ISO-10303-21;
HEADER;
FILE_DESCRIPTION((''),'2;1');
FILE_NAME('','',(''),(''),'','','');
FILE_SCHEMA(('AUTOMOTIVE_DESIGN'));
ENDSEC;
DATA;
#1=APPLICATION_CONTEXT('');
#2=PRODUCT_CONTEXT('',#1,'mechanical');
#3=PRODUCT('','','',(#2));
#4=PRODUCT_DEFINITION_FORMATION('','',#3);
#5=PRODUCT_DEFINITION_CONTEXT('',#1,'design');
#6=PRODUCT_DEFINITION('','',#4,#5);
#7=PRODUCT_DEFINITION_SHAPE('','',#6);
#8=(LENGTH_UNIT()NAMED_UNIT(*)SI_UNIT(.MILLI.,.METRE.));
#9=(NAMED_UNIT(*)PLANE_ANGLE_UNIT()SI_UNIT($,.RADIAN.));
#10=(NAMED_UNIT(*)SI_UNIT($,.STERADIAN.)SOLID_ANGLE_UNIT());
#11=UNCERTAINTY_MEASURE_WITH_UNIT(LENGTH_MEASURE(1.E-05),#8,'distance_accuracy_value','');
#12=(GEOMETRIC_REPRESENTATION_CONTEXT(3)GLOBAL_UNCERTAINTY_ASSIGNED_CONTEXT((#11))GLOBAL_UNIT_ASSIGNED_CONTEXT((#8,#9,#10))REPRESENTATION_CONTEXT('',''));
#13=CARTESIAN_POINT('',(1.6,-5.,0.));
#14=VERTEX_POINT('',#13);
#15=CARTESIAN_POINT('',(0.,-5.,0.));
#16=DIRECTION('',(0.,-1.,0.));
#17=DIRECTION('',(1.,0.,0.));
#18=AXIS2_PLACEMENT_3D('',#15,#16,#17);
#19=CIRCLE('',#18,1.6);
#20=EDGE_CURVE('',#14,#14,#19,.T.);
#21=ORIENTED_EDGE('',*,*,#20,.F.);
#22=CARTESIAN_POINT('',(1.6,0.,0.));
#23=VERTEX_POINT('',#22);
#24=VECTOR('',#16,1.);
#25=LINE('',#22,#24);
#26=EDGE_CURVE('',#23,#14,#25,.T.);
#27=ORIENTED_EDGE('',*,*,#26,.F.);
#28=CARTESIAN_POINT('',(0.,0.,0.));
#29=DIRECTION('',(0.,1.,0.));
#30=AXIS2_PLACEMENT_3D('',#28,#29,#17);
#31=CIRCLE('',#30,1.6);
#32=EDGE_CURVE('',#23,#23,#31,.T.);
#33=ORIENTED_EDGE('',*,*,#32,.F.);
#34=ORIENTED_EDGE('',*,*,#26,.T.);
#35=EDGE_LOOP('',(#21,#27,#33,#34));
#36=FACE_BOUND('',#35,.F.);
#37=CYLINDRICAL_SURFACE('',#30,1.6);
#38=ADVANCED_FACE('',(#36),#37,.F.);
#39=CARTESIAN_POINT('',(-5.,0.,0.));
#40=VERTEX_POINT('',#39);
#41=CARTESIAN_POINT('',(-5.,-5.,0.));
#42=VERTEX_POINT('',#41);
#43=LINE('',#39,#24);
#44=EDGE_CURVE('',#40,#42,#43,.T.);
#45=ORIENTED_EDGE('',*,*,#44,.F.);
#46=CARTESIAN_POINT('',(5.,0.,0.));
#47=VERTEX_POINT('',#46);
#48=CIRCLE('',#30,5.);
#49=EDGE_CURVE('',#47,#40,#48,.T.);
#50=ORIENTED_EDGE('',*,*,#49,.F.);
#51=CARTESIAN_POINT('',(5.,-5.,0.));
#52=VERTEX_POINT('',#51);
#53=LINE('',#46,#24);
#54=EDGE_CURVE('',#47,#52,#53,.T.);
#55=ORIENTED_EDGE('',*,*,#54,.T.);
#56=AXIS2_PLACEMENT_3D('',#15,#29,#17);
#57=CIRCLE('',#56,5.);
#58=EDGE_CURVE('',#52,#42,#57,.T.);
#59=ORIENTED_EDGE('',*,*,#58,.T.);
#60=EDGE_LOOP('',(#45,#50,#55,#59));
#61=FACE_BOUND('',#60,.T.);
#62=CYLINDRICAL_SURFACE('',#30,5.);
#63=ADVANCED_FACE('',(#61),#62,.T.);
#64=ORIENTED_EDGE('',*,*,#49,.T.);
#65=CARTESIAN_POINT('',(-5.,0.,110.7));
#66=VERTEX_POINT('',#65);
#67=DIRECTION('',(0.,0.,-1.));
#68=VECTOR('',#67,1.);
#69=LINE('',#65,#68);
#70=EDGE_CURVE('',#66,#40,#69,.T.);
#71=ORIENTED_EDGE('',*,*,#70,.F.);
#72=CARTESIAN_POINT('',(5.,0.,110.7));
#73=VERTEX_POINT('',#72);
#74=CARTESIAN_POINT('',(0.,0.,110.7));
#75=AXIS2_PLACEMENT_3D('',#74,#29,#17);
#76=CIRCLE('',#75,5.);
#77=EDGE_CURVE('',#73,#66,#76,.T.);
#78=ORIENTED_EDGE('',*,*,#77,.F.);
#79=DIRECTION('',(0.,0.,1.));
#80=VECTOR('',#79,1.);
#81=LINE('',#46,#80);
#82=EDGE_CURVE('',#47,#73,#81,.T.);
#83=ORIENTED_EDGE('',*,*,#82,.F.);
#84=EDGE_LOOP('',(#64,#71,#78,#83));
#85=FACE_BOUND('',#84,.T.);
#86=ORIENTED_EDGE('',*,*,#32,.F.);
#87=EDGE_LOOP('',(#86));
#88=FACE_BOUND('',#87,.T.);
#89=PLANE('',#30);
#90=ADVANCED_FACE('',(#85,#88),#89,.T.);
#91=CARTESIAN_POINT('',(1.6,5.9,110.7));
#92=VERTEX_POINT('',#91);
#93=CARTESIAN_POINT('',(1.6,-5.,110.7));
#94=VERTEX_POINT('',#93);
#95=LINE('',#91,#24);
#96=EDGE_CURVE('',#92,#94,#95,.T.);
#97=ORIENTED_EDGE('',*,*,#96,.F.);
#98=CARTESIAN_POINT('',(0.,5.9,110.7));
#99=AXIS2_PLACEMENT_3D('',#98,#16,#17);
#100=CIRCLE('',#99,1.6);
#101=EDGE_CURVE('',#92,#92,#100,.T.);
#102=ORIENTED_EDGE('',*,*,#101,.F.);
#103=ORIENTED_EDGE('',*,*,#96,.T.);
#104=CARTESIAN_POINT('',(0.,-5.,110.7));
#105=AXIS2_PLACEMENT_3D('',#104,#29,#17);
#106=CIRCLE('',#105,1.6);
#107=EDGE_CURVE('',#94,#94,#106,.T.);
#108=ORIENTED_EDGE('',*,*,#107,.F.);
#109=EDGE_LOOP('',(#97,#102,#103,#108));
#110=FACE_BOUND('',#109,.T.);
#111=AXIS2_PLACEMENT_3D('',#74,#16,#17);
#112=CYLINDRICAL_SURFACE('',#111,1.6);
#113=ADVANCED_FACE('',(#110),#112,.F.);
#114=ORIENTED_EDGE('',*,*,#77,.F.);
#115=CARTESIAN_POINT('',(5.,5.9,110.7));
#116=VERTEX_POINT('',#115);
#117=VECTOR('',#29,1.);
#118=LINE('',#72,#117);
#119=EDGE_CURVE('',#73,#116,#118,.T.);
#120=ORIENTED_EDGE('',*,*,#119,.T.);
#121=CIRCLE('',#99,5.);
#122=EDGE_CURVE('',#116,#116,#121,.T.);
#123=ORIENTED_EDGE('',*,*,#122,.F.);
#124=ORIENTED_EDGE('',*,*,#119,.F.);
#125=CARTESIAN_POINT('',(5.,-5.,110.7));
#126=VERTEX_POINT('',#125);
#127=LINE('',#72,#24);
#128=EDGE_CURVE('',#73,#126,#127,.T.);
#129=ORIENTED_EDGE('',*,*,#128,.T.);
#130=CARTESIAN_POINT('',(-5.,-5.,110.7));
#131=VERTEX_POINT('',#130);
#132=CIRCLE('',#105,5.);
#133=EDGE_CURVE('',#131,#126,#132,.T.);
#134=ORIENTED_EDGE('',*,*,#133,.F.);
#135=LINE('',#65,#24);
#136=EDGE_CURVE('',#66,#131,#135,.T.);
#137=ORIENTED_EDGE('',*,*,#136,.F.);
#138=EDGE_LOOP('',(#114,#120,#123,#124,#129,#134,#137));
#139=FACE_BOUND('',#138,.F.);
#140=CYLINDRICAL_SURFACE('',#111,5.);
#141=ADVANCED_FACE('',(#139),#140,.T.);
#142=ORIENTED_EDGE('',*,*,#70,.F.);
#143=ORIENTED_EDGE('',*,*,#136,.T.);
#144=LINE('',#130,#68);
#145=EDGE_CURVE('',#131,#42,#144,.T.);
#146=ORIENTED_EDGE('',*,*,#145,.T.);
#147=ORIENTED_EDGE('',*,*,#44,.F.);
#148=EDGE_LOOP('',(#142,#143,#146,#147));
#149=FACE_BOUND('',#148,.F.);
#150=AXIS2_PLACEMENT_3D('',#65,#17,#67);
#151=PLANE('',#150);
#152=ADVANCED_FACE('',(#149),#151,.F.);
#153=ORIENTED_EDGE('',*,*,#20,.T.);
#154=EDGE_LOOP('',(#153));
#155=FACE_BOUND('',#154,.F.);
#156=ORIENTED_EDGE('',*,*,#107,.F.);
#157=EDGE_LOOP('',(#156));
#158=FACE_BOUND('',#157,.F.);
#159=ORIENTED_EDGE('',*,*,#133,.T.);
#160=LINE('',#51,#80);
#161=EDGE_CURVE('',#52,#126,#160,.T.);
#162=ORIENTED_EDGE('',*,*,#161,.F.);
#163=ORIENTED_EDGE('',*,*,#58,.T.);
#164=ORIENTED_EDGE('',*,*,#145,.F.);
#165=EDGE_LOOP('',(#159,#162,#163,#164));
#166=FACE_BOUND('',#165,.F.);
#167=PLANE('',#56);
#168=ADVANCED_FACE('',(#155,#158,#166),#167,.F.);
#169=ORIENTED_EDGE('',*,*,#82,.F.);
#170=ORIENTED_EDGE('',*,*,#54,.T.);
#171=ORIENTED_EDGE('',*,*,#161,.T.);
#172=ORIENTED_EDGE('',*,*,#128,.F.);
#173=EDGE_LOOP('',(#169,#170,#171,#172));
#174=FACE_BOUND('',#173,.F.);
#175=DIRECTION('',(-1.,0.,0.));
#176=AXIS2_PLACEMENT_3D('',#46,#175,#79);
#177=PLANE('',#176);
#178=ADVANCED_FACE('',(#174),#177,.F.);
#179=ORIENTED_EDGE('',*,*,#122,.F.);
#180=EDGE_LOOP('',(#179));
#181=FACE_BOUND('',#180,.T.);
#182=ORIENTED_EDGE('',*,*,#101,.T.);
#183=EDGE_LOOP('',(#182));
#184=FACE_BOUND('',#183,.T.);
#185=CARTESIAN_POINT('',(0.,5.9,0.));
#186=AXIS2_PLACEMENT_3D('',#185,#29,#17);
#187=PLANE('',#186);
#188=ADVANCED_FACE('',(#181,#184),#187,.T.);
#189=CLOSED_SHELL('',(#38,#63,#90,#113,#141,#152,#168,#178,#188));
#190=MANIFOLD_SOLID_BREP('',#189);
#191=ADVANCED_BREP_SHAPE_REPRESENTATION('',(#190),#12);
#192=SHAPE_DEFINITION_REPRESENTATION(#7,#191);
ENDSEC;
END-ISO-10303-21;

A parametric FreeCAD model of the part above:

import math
import FreeCAD as App
import Part
import Sketcher
Q = App.Units.Quantity

doc = App.newDocument("Part")
params = doc.addObject("Spreadsheet::Sheet", "Params")
for row, (alias, value) in enumerate([
    ("sketch1_diameter", "10 mm"),
    ("sketch1_diameter2", "3.2 mm"),
    ("pad1_length", "5.9 mm"),
    ("sketch2_radius", "5 mm"),
    ("sketch2_diameter", "3.2 mm"),
    ("sketch2_height", "110.7 mm"),
    ("pad2_length", "5 mm"),
], start=1):
    params.set(f"A{row}", alias)
    params.set(f"B{row}", "=" + value)
    params.setAlias(f"B{row}", alias)

body = doc.addObject("PartDesign::Body", "Body")

# Sketch on XZ plane
sketch1 = body.newObject("Sketcher::SketchObject", "Sketch")
sketch1.AttachmentSupport = (doc.getObject("XZ_Plane"), [""])
sketch1.MapMode = "FlatFace"
sketch1.addGeometry(Part.Circle(App.Vector(0, 110.7, 0), App.Vector(0, 0, 1), 5), False)
sketch1.addGeometry(Part.Circle(App.Vector(0, 110.7, 0), App.Vector(0, 0, 1), 1.6), False)
sketch1.addConstraint(Sketcher.Constraint("Coincident", 1, 3, 0, 3))
sketch1.addConstraint(Sketcher.Constraint("PointOnObject", 0, 3, -2))
sketch1.addConstraint(Sketcher.Constraint("Diameter", 0, Q("10 mm")))
sketch1.addConstraint(Sketcher.Constraint("Diameter", 1, Q("3.2 mm")))
sketch1.addConstraint(Sketcher.Constraint("DistanceY", -1, 1, 0, 3, Q("110.7 mm")))
sketch1.setExpression("Constraints[2]", "Params.sketch1_diameter")
sketch1.setExpression("Constraints[3]", "Params.sketch1_diameter2")
pad1 = body.newObject("PartDesign::Pad", "Pad")
pad1.Profile = sketch1
pad1.setExpression("Length", "Params.pad1_length")
pad1.Reversed = True

# Sketch on XZ plane
sketch2 = body.newObject("Sketcher::SketchObject", "Sketch001")
sketch2.AttachmentSupport = (doc.getObject("XZ_Plane"), [""])
sketch2.MapMode = "FlatFace"
sketch2.addGeometry(Part.ArcOfCircle(Part.Circle(App.Vector(0, 0, 0), App.Vector(0, 0, 1), 5), math.radians(180), math.radians(360)), False)
sketch2.addGeometry(Part.LineSegment(App.Vector(-5, 0, 0), App.Vector(-5, 110.7, 0)), False)
sketch2.addGeometry(Part.ArcOfCircle(Part.Circle(App.Vector(0, 110.7, 0), App.Vector(0, 0, 1), 5), math.radians(0), math.radians(180)), False)
sketch2.addGeometry(Part.LineSegment(App.Vector(5, 110.7, 0), App.Vector(5, 0, 0)), False)
sketch2.addGeometry(Part.Circle(App.Vector(0, 0, 0), App.Vector(0, 0, 1), 1.6), False)
sketch2.addGeometry(Part.Circle(App.Vector(0, 110.7, 0), App.Vector(0, 0, 1), 1.6), False)
sketch2.addConstraint(Sketcher.Constraint("Tangent", 0, 1, 1, 1))
sketch2.addConstraint(Sketcher.Constraint("Tangent", 1, 2, 2, 2))
sketch2.addConstraint(Sketcher.Constraint("Tangent", 2, 1, 3, 1))
sketch2.addConstraint(Sketcher.Constraint("Tangent", 3, 2, 0, 2))
sketch2.addConstraint(Sketcher.Constraint("Vertical", 1))
sketch2.addConstraint(Sketcher.Constraint("Vertical", 3))
sketch2.addConstraint(Sketcher.Constraint("Coincident", 0, 3, -1, 1))
sketch2.addConstraint(Sketcher.Constraint("Coincident", 4, 3, -1, 1))
sketch2.addConstraint(Sketcher.Constraint("Coincident", 5, 3, 2, 3))
sketch2.addConstraint(Sketcher.Constraint("Equal", 4, 5))
sketch2.addConstraint(Sketcher.Constraint("Radius", 0, Q("5 mm")))
sketch2.addConstraint(Sketcher.Constraint("Diameter", 4, Q("3.2 mm")))
sketch2.addConstraint(Sketcher.Constraint("DistanceY", 1, 1, 1, 2, Q("110.7 mm")))
sketch2.setExpression("Constraints[10]", "Params.sketch2_radius")
sketch2.setExpression("Constraints[11]", "Params.sketch2_diameter")
sketch2.setExpression("Constraints[12]", "Params.sketch2_height")
pad2 = body.newObject("PartDesign::Pad", "Pad001")
pad2.Profile = sketch2
pad2.setExpression("Length", "Params.pad2_length")

doc.recompute()
